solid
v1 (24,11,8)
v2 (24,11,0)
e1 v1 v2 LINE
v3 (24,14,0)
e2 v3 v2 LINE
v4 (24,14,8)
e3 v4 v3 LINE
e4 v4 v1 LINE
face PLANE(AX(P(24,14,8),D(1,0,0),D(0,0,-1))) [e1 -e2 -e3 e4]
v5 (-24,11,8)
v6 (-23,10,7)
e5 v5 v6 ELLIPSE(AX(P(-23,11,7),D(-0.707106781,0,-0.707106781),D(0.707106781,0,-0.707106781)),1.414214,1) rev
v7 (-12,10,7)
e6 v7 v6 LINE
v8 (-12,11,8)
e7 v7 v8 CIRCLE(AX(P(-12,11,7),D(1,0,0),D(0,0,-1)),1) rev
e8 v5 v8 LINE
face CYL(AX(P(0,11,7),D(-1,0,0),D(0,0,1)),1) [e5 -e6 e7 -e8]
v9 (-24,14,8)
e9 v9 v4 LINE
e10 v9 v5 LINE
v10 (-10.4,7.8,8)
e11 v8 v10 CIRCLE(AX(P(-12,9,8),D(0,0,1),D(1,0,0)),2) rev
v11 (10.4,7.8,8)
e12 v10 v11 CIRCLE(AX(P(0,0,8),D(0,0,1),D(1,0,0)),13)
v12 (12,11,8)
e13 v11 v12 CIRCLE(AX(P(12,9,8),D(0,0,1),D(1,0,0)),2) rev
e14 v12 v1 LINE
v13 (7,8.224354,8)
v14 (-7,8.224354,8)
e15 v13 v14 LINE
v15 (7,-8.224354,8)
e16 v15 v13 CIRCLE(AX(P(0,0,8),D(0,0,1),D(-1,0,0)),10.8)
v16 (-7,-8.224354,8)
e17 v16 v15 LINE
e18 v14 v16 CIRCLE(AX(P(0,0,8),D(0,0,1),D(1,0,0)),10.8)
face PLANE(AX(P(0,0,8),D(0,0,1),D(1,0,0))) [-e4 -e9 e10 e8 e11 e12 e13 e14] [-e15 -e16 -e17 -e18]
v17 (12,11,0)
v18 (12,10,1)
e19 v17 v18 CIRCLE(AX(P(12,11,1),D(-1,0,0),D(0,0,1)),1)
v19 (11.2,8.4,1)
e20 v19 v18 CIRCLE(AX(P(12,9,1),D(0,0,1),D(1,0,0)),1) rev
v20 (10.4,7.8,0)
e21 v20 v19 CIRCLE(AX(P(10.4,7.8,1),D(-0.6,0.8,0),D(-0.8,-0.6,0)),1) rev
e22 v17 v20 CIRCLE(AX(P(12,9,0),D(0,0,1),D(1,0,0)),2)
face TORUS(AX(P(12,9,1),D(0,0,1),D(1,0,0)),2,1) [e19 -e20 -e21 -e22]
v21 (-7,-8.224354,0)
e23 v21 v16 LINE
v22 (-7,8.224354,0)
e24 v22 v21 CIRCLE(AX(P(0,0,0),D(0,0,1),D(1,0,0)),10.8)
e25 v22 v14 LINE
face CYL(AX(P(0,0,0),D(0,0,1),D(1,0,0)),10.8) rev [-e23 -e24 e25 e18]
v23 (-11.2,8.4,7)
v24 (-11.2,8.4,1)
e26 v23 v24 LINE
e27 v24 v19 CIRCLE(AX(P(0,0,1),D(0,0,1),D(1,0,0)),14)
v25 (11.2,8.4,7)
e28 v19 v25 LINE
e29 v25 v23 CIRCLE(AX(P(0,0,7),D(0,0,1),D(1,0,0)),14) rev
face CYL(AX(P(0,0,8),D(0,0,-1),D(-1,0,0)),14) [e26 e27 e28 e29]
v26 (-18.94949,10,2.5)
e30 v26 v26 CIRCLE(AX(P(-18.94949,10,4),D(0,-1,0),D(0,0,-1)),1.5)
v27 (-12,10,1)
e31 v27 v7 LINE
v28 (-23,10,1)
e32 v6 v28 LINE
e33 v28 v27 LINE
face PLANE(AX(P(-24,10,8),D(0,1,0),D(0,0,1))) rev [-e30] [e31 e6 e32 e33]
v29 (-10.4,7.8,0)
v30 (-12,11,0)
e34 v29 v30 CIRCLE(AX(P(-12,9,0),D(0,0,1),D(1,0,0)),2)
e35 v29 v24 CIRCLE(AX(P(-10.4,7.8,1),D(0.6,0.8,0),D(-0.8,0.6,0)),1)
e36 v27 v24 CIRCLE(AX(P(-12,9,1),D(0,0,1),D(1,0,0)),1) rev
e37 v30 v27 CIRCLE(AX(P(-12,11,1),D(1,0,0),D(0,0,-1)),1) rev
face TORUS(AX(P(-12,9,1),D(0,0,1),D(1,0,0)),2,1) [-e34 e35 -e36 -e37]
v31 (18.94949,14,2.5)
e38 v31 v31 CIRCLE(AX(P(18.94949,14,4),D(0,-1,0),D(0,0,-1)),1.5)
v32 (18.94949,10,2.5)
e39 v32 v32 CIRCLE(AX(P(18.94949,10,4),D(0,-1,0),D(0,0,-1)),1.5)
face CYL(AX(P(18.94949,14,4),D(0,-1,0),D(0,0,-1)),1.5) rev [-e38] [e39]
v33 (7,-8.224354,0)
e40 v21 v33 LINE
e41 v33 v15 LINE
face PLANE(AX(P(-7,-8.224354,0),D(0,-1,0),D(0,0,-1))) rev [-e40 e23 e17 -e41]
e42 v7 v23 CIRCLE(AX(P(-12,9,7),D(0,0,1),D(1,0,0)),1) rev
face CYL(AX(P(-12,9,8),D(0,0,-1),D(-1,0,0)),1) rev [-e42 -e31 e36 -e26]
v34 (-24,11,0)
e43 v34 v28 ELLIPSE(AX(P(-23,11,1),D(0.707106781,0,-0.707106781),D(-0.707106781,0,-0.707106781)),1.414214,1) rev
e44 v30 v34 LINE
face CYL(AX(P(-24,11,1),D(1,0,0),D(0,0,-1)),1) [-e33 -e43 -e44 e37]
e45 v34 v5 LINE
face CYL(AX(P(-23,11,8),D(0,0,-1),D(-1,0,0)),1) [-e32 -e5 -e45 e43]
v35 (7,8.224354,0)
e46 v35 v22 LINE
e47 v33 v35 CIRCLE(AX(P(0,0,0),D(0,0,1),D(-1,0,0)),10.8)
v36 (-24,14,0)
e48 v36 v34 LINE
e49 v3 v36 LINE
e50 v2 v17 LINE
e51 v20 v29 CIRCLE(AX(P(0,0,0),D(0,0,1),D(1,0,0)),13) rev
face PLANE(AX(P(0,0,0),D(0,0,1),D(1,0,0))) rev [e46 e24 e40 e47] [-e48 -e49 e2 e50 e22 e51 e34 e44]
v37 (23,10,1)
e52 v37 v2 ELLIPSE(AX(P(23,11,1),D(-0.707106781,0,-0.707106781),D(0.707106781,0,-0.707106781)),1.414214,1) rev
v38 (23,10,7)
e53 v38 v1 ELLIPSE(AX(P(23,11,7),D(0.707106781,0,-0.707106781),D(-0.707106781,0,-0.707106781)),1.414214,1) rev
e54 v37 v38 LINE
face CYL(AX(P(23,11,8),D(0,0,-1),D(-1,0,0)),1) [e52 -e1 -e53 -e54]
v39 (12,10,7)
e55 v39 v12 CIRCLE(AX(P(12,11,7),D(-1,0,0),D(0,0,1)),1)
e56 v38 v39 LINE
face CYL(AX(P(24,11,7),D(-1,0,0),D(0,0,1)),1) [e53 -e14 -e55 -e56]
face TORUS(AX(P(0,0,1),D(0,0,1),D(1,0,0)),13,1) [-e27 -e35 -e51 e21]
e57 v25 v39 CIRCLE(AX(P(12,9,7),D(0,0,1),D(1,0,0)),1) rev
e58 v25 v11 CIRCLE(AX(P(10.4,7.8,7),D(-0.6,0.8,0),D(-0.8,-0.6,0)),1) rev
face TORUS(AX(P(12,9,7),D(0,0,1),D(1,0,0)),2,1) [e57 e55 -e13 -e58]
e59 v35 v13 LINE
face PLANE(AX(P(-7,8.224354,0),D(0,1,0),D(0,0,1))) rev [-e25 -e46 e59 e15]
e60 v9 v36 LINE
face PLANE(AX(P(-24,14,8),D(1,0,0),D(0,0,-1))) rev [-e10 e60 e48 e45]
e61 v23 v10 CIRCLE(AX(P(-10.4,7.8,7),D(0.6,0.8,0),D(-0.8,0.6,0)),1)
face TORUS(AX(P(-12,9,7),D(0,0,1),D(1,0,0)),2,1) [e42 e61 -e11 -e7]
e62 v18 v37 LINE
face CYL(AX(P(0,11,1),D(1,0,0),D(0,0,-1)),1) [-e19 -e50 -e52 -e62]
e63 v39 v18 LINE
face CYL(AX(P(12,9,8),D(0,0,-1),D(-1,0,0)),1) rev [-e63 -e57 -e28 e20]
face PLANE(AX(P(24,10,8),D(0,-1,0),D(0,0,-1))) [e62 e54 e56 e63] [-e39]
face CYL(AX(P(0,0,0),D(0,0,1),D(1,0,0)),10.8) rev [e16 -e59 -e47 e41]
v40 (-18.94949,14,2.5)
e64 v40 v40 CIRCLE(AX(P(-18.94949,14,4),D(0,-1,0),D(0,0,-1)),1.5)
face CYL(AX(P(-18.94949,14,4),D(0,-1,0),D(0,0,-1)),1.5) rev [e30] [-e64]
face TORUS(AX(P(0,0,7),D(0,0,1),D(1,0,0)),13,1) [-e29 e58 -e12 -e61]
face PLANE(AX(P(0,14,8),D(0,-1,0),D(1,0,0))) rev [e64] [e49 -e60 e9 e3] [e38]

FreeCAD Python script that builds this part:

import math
import FreeCAD as App
import Part
import Sketcher
from FreeCAD import Vector
Q = App.Units.Quantity


def edges_at(feature, points):
    """Names of the edges that pass closest to the given points."""
    edges = feature.Shape.Edges
    near = lambda p: min(range(len(edges)), key=lambda i: edges[i].distToShape(Part.Vertex(*p))[0])
    return sorted({f"Edge{near(p) + 1}" for p in points})

doc = App.newDocument("Part")
body = doc.addObject("PartDesign::Body", "Body")

sketch1 = body.newObject("Sketcher::SketchObject", "Sketch")
sketch1.AttachmentSupport = (doc.getObject("XY_Plane"), [""])
sketch1.MapMode = "FlatFace"
sketch1.addGeometry([
    Part.LineSegment(Vector(-24, 14, 0), Vector(-24, 10, 0)),
    Part.LineSegment(Vector(-24, 10, 0), Vector(-9.797959, 10, 0)),
    Part.ArcOfCircle(Part.Circle(Vector(0, 0, 0), Vector(0, 0, 1), 14), math.radians(134.415309), math.radians(405.584691)),
    Part.LineSegment(Vector(9.797959, 10, 0), Vector(24, 10, 0)),
    Part.LineSegment(Vector(24, 10, 0), Vector(24, 14, 0)),
    Part.LineSegment(Vector(24, 14, 0), Vector(-24, 14, 0)),
], False)
sketch1.addConstraint([
    Sketcher.Constraint("Coincident", 0, 2, 1, 1),
    Sketcher.Constraint("Coincident", 1, 2, 2, 1),
    Sketcher.Constraint("Coincident", 2, 2, 3, 1),
    Sketcher.Constraint("Coincident", 3, 2, 4, 1),
    Sketcher.Constraint("Coincident", 4, 2, 5, 1),
    Sketcher.Constraint("Coincident", 5, 2, 0, 1),
    Sketcher.Constraint("Vertical", 0),
    Sketcher.Constraint("Horizontal", 1),
    Sketcher.Constraint("Horizontal", 3),
    Sketcher.Constraint("Vertical", 4),
    Sketcher.Constraint("Horizontal", 5),
    Sketcher.Constraint("Coincident", 2, 3, -1, 1),
    Sketcher.Constraint("Symmetric", 0, 2, 3, 2, -2),
    Sketcher.Constraint("Radius", 2, Q("14 mm")),
    Sketcher.Constraint("DistanceX", 5, 2, 5, 1, Q("48 mm")),
    Sketcher.Constraint("DistanceY", 0, 2, 0, 1, Q("4 mm")),
    Sketcher.Constraint("DistanceY", -1, 1, 0, 2, Q("10 mm")),
])
pad1 = body.newObject("PartDesign::Pad", "Pad")
pad1.Profile = sketch1
pad1.Length = 8

sketch2 = body.newObject("Sketcher::SketchObject", "Sketch001")
sketch2.AttachmentSupport = (doc.getObject("XY_Plane"), [""])
sketch2.MapMode = "FlatFace"
sketch2.AttachmentOffset = App.Placement(Vector(0, 0, 8), App.Rotation())
sketch2.addGeometry([
    Part.LineSegment(Vector(7, 8.224354, 0), Vector(-7, 8.224354, 0)),
    Part.ArcOfCircle(Part.Circle(Vector(0, 0, 0), Vector(0, 0, 1), 10.8), math.radians(130.402125), math.radians(229.597875)),
    Part.LineSegment(Vector(-7, -8.224354, 0), Vector(7, -8.224354, 0)),
    Part.ArcOfCircle(Part.Circle(Vector(0, 0, 0), Vector(0, 0, 1), 10.8), math.radians(-49.597875), math.radians(49.597875)),
], False)
sketch2.addConstraint([
    Sketcher.Constraint("Coincident", 0, 2, 1, 1),
    Sketcher.Constraint("Coincident", 1, 2, 2, 1),
    Sketcher.Constraint("Coincident", 2, 2, 3, 1),
    Sketcher.Constraint("Coincident", 3, 2, 0, 1),
    Sketcher.Constraint("Horizontal", 0),
    Sketcher.Constraint("Horizontal", 2),
    Sketcher.Constraint("Coincident", 1, 3, -1, 1),
    Sketcher.Constraint("Coincident", 3, 3, -1, 1),
    Sketcher.Constraint("Equal", 1, 3),
    Sketcher.Constraint("Vertical", 0, 2, 1, 2),
    Sketcher.Constraint("Radius", 1, Q("10.8 mm")),
    Sketcher.Constraint("DistanceX", 0, 2, 0, 1, Q("14 mm")),
])
pocket1 = body.newObject("PartDesign::Pocket", "Pocket")
pocket1.Profile = sketch2
pocket1.Type = "ThroughAll"
doc.recompute()

fillet = body.newObject("PartDesign::Fillet", "Fillet")
fillet.Base = (pocket1, edges_at(pocket1, [
    (16.899, 10, 8),
    (-24, 10, 4),
    (-9.798, 10, 4),
    (9.798, 10, 4),
    (24, 10, 4),
    (0, -14, 8),
    (-16.899, 10, 8),
    (-16.899, 10, 0),
    (0, -14, 0),
    (16.899, 10, 0),
]))
fillet.Radius = 1

sketch3 = body.newObject("Sketcher::SketchObject", "Sketch002")
sketch3.AttachmentSupport = (doc.getObject("XZ_Plane"), [""])
sketch3.MapMode = "FlatFace"
sketch3.AttachmentOffset = App.Placement(Vector(0, 0, -10), App.Rotation())
sketch3.addGeometry([
    Part.Circle(Vector(-18.94949, 4, 0), Vector(0, 0, 1), 1.5),
    Part.Circle(Vector(18.94949, 4, 0), Vector(0, 0, 1), 1.5),
], False)
sketch3.addConstraint([
    Sketcher.Constraint("Equal", 0, 1),
    Sketcher.Constraint("Symmetric", 0, 3, 1, 3, -2),
    Sketcher.Constraint("Diameter", 0, Q("3 mm")),
    Sketcher.Constraint("DistanceY", -1, 1, 0, 3, Q("4 mm")),
    Sketcher.Constraint("DistanceX", 0, 3, -1, 1, Q("18.94949 mm")),
])
pocket2 = body.newObject("PartDesign::Pocket", "Pocket001")
pocket2.Profile = sketch3
pocket2.Type = "ThroughAll"

doc.recompute()
